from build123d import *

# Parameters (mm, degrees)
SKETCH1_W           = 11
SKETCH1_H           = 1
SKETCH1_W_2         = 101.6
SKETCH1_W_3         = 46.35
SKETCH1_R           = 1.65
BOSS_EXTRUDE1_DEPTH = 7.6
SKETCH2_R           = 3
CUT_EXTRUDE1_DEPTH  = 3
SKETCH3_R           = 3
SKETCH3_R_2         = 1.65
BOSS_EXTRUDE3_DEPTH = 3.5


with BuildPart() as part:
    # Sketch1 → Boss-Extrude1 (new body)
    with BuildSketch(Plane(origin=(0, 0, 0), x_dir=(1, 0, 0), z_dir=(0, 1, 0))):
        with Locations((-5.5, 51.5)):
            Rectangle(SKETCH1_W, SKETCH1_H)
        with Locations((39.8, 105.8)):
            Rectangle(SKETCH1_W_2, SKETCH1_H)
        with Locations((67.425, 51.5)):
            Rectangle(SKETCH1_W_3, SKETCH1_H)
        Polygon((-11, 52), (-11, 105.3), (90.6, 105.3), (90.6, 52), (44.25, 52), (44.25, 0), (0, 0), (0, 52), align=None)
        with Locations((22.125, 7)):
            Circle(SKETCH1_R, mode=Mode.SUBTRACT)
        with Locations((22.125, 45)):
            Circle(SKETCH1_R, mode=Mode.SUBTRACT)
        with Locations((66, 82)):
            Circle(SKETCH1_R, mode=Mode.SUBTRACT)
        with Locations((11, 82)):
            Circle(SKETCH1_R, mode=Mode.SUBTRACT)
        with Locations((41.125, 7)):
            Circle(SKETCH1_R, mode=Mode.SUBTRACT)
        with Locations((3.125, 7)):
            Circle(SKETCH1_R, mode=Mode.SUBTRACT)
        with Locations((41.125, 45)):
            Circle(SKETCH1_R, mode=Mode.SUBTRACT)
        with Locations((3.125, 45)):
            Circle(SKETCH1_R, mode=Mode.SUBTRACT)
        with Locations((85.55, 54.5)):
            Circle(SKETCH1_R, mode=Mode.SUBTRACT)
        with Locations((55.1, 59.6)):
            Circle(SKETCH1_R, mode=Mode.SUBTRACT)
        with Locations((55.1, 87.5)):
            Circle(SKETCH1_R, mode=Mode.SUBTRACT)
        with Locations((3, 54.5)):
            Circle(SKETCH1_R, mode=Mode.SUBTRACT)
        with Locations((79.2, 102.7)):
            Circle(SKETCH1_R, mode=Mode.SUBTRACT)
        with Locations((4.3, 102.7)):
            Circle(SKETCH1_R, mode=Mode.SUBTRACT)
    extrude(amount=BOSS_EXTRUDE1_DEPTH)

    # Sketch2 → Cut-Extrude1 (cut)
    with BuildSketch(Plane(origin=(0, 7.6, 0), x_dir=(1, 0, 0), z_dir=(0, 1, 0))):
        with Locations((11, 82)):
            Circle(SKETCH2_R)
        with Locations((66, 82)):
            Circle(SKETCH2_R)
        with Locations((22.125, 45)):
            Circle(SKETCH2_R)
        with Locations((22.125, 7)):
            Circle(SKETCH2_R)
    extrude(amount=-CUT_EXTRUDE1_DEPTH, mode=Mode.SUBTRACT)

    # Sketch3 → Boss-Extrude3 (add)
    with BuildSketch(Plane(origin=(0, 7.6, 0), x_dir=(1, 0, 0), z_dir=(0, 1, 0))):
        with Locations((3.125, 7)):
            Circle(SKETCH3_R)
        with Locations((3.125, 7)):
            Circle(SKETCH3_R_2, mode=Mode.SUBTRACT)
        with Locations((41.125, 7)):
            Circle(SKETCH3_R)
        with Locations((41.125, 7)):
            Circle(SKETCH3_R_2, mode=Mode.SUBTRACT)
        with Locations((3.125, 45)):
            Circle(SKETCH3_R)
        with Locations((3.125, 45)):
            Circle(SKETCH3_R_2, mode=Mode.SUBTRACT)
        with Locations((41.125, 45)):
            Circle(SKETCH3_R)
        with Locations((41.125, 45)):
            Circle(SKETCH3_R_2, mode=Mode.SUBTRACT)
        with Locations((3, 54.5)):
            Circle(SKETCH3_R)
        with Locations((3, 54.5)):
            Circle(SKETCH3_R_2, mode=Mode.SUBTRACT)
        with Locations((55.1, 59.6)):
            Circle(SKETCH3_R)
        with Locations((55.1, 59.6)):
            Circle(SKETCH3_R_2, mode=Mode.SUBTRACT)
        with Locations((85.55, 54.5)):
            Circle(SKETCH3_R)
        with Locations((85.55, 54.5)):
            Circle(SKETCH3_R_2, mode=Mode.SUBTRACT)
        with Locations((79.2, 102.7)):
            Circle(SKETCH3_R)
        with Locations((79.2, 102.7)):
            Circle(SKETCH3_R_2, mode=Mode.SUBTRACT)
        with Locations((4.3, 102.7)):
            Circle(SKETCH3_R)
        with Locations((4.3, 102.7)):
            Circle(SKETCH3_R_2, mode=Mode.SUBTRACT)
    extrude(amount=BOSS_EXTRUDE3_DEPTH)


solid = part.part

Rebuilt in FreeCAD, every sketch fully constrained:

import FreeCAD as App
import Part
import Sketcher

V = App.Vector
Q = App.Units.Quantity

doc = App.newDocument("Part")
body = doc.addObject("PartDesign::Body", "Body")

sketch1 = doc.addObject("Sketcher::SketchObject", "Sketch")
body.addObject(sketch1)
sketch1.AttachmentSupport = (doc.XZ_Plane, [""])
sketch1.MapMode = "FlatFace"
sketch1.addGeometry(Part.LineSegment(V(-11, -51, 0), V(0, -51, 0)), False)
sketch1.addGeometry(Part.LineSegment(V(0, -51, 0), V(0, 0, 0)), False)
sketch1.addGeometry(Part.LineSegment(V(0, 0, 0), V(44.25, 0, 0)), False)
sketch1.addGeometry(Part.LineSegment(V(44.25, 0, 0), V(44.25, -51, 0)), False)
sketch1.addGeometry(Part.LineSegment(V(44.25, -51, 0), V(90.6, -51, 0)), False)
sketch1.addGeometry(Part.LineSegment(V(90.6, -51, 0), V(90.6, -106.3, 0)), False)
sketch1.addGeometry(Part.LineSegment(V(90.6, -106.3, 0), V(-11, -106.3, 0)), False)
sketch1.addGeometry(Part.LineSegment(V(-11, -106.3, 0), V(-11, -51, 0)), False)
sketch1.addGeometry(Part.Circle(V(3.125, -7, 0), V(0, 0, 1), 1.65), False)
sketch1.addGeometry(Part.Circle(V(22.125, -7, 0), V(0, 0, 1), 1.65), False)
sketch1.addGeometry(Part.Circle(V(41.125, -7, 0), V(0, 0, 1), 1.65), False)
sketch1.addGeometry(Part.Circle(V(3.125, -45, 0), V(0, 0, 1), 1.65), False)
sketch1.addGeometry(Part.Circle(V(3, -54.5, 0), V(0, 0, 1), 1.65), False)
sketch1.addGeometry(Part.Circle(V(22.125, -45, 0), V(0, 0, 1), 1.65), False)
sketch1.addGeometry(Part.Circle(V(41.125, -45, 0), V(0, 0, 1), 1.65), False)
sketch1.addGeometry(Part.Circle(V(85.55, -54.5, 0), V(0, 0, 1), 1.65), False)
sketch1.addGeometry(Part.Circle(V(11, -82, 0), V(0, 0, 1), 1.65), False)
sketch1.addGeometry(Part.Circle(V(4.3, -102.7, 0), V(0, 0, 1), 1.65), False)
sketch1.addGeometry(Part.Circle(V(55.1, -59.6, 0), V(0, 0, 1), 1.65), False)
sketch1.addGeometry(Part.Circle(V(55.1, -87.5, 0), V(0, 0, 1), 1.65), False)
sketch1.addGeometry(Part.Circle(V(66, -82, 0), V(0, 0, 1), 1.65), False)
sketch1.addGeometry(Part.Circle(V(79.2, -102.7, 0), V(0, 0, 1), 1.65), False)
sketch1.addConstraint(Sketcher.Constraint("Coincident", 0, 2, 1, 1))
sketch1.addConstraint(Sketcher.Constraint("Coincident", 1, 2, 2, 1))
sketch1.addConstraint(Sketcher.Constraint("Coincident", 2, 2, 3, 1))
sketch1.addConstraint(Sketcher.Constraint("Coincident", 3, 2, 4, 1))
sketch1.addConstraint(Sketcher.Constraint("Coincident", 4, 2, 5, 1))
sketch1.addConstraint(Sketcher.Constraint("Coincident", 5, 2, 6, 1))
sketch1.addConstraint(Sketcher.Constraint("Coincident", 6, 2, 7, 1))
sketch1.addConstraint(Sketcher.Constraint("Coincident", 7, 2, 0, 1))
sketch1.addConstraint(Sketcher.Constraint("Horizontal", 0))
sketch1.addConstraint(Sketcher.Constraint("Vertical", 1))
sketch1.addConstraint(Sketcher.Constraint("Horizontal", 2))
sketch1.addConstraint(Sketcher.Constraint("Vertical", 3))
sketch1.addConstraint(Sketcher.Constraint("Horizontal", 4))
sketch1.addConstraint(Sketcher.Constraint("Vertical", 5))
sketch1.addConstraint(Sketcher.Constraint("Horizontal", 6))
sketch1.addConstraint(Sketcher.Constraint("Vertical", 7))
sketch1.addConstraint(Sketcher.Constraint("Coincident", 1, 2, -1, 1))
sketch1.addConstraint(Sketcher.Constraint("Equal", 8, 9))
sketch1.addConstraint(Sketcher.Constraint("Equal", 9, 10))
sketch1.addConstraint(Sketcher.Constraint("Equal", 10, 11))
sketch1.addConstraint(Sketcher.Constraint("Equal", 11, 12))
sketch1.addConstraint(Sketcher.Constraint("Equal", 12, 13))
sketch1.addConstraint(Sketcher.Constraint("Equal", 13, 14))
sketch1.addConstraint(Sketcher.Constraint("Equal", 14, 15))
sketch1.addConstraint(Sketcher.Constraint("Equal", 15, 16))
sketch1.addConstraint(Sketcher.Constraint("Equal", 16, 17))
sketch1.addConstraint(Sketcher.Constraint("Equal", 17, 18))
sketch1.addConstraint(Sketcher.Constraint("Equal", 18, 19))
sketch1.addConstraint(Sketcher.Constraint("Equal", 19, 20))
sketch1.addConstraint(Sketcher.Constraint("Equal", 20, 21))
sketch1.addConstraint(Sketcher.Constraint("Horizontal", 8, 3, 9, 3))
sketch1.addConstraint(Sketcher.Constraint("Horizontal", 9, 3, 10, 3))
sketch1.addConstraint(Sketcher.Constraint("Horizontal", 11, 3, 13, 3))
sketch1.addConstraint(Sketcher.Constraint("Horizontal", 13, 3, 14, 3))
sketch1.addConstraint(Sketcher.Constraint("Horizontal", 12, 3, 15, 3))
sketch1.addConstraint(Sketcher.Constraint("Horizontal", 16, 3, 20, 3))
sketch1.addConstraint(Sketcher.Constraint("Horizontal", 17, 3, 21, 3))
sketch1.addConstraint(Sketcher.Constraint("Horizontal", 0, 2, 3, 2))
sketch1.addConstraint(Sketcher.Constraint("Vertical", 8, 3, 11, 3))
sketch1.addConstraint(Sketcher.Constraint("Vertical", 9, 3, 13, 3))
sketch1.addConstraint(Sketcher.Constraint("Vertical", 10, 3, 14, 3))
sketch1.addConstraint(Sketcher.Constraint("Vertical", 18, 3, 19, 3))
sketch1.addConstraint(Sketcher.Constraint("Diameter", 8, Q("3.3 mm")))
sketch1.addConstraint(Sketcher.Constraint("DistanceX", 0, 1, 0, 2, Q("11 mm")))
sketch1.addConstraint(Sketcher.Constraint("DistanceY", 1, 1, 1, 2, Q("51 mm")))
sketch1.addConstraint(Sketcher.Constraint("DistanceX", 6, 2, 6, 1, Q("101.6 mm")))
sketch1.addConstraint(Sketcher.Constraint("DistanceY", 5, 2, 5, 1, Q("55.3 mm")))
sketch1.addConstraint(Sketcher.Constraint("DistanceY", 8, 3, -1, 1, Q("7 mm")))
sketch1.addConstraint(Sketcher.Constraint("DistanceY", 11, 3, -1, 1, Q("45 mm")))
sketch1.addConstraint(Sketcher.Constraint("DistanceX", -1, 1, 12, 3, Q("3 mm")))
sketch1.addConstraint(Sketcher.Constraint("DistanceX", -1, 1, 16, 3, Q("11 mm")))
sketch1.addConstraint(Sketcher.Constraint("DistanceY", 16, 3, -1, 1, Q("82 mm")))
sketch1.addConstraint(Sketcher.Constraint("DistanceX", -1, 1, 20, 3, Q("66 mm")))
sketch1.addConstraint(Sketcher.Constraint("DistanceX", 8, 3, 9, 3, Q("19 mm")))
sketch1.addConstraint(Sketcher.Constraint("DistanceX", 9, 3, 10, 3, Q("19 mm")))
sketch1.addConstraint(Sketcher.Constraint("DistanceY", 19, 3, 15, 3, Q("33 mm")))
sketch1.addConstraint(Sketcher.Constraint("DistanceX", 2, 1, 2, 2, Q("44.25 mm")))
sketch1.addConstraint(Sketcher.Constraint("DistanceY", 12, 3, -1, 1, Q("54.5 mm")))
sketch1.addConstraint(Sketcher.Constraint("DistanceX", -1, 1, 17, 3, Q("4.3 mm")))
sketch1.addConstraint(Sketcher.Constraint("DistanceY", 17, 3, -1, 1, Q("102.7 mm")))
sketch1.addConstraint(Sketcher.Constraint("DistanceX", -1, 1, 18, 3, Q("55.1 mm")))
sketch1.addConstraint(Sketcher.Constraint("DistanceY", 18, 3, -1, 1, Q("59.6 mm")))
sketch1.addConstraint(Sketcher.Constraint("DistanceX", -1, 1, 21, 3, Q("79.2 mm")))
sketch1.addConstraint(Sketcher.Constraint("DistanceX", -1, 1, 15, 3, Q("85.55 mm")))
sketch1.addConstraint(Sketcher.Constraint("DistanceX", -1, 1, 8, 3, Q("3.125 mm")))
pad1 = doc.addObject("PartDesign::Pad", "Pad")
body.addObject(pad1)
pad1.Profile = sketch1
pad1.Length = 7.6
pad1.Reversed = True

sketch2 = doc.addObject("Sketcher::SketchObject", "Sketch001")
body.addObject(sketch2)
sketch2.AttachmentSupport = (doc.XZ_Plane, [""])
sketch2.MapMode = "FlatFace"
sketch2.AttachmentOffset = App.Placement(V(0, 0, -7.6), App.Rotation())
sketch2.addGeometry(Part.Circle(V(11, -82, 0), V(0, 0, 1), 3), False)
sketch2.addGeometry(Part.Circle(V(66, -82, 0), V(0, 0, 1), 3), False)
sketch2.addGeometry(Part.Circle(V(22.125, -45, 0), V(0, 0, 1), 3), False)
sketch2.addGeometry(Part.Circle(V(22.125, -7, 0), V(0, 0, 1), 3), False)
sketch2.addConstraint(Sketcher.Constraint("Equal", 0, 1))
sketch2.addConstraint(Sketcher.Constraint("Equal", 1, 2))
sketch2.addConstraint(Sketcher.Constraint("Equal", 2, 3))
sketch2.addConstraint(Sketcher.Constraint("Horizontal", 0, 3, 1, 3))
sketch2.addConstraint(Sketcher.Constraint("Vertical", 2, 3, 3, 3))
sketch2.addConstraint(Sketcher.Constraint("Diameter", 0, Q("6 mm")))
sketch2.addConstraint(Sketcher.Constraint("DistanceX", -1, 1, 0, 3, Q("11 mm")))
sketch2.addConstraint(Sketcher.Constraint("DistanceY", 0, 3, -1, 1, Q("82 mm")))
sketch2.addConstraint(Sketcher.Constraint("DistanceX", -1, 1, 1, 3, Q("66 mm")))
sketch2.addConstraint(Sketcher.Constraint("DistanceY", 2, 3, -1, 1, Q("45 mm")))
sketch2.addConstraint(Sketcher.Constraint("DistanceY", 3, 3, -1, 1, Q("7 mm")))
sketch2.addConstraint(Sketcher.Constraint("DistanceX", -1, 1, 2, 3, Q("22.125 mm")))
pocket1 = doc.addObject("PartDesign::Pocket", "Pocket")
body.addObject(pocket1)
pocket1.Profile = sketch2
pocket1.Length = 3
pocket1.Reversed = True

sketch3 = doc.addObject("Sketcher::SketchObject", "Sketch002")
body.addObject(sketch3)
sketch3.AttachmentSupport = (doc.XZ_Plane, [""])
sketch3.MapMode = "FlatFace"
sketch3.AttachmentOffset = App.Placement(V(0, 0, -7.6), App.Rotation())
sketch3.addGeometry(Part.Circle(V(3.125, -7, 0), V(0, 0, 1), 3), False)
sketch3.addGeometry(Part.Circle(V(3.125, -7, 0), V(0, 0, 1), 1.65), False)
sketch3.addGeometry(Part.Circle(V(41.125, -7, 0), V(0, 0, 1), 3), False)
sketch3.addGeometry(Part.Circle(V(41.125, -7, 0), V(0, 0, 1), 1.65), False)
sketch3.addGeometry(Part.Circle(V(3.125, -45, 0), V(0, 0, 1), 3), False)
sketch3.addGeometry(Part.Circle(V(3.125, -45, 0), V(0, 0, 1), 1.65), False)
sketch3.addGeometry(Part.Circle(V(41.125, -45, 0), V(0, 0, 1), 3), False)
sketch3.addGeometry(Part.Circle(V(41.125, -45, 0), V(0, 0, 1), 1.65), False)
sketch3.addGeometry(Part.Circle(V(3, -54.5, 0), V(0, 0, 1), 3), False)
sketch3.addGeometry(Part.Circle(V(3, -54.5, 0), V(0, 0, 1), 1.65), False)
sketch3.addGeometry(Part.Circle(V(55.1, -59.6, 0), V(0, 0, 1), 3), False)
sketch3.addGeometry(Part.Circle(V(55.1, -59.6, 0), V(0, 0, 1), 1.65), False)
sketch3.addGeometry(Part.Circle(V(85.55, -54.5, 0), V(0, 0, 1), 3), False)
sketch3.addGeometry(Part.Circle(V(85.55, -54.5, 0), V(0, 0, 1), 1.65), False)
sketch3.addGeometry(Part.Circle(V(79.2, -102.7, 0), V(0, 0, 1), 3), False)
sketch3.addGeometry(Part.Circle(V(79.2, -102.7, 0), V(0, 0, 1), 1.65), False)
sketch3.addGeometry(Part.Circle(V(4.3, -102.7, 0), V(0, 0, 1), 3), False)
sketch3.addGeometry(Part.Circle(V(4.3, -102.7, 0), V(0, 0, 1), 1.65), False)
sketch3.addConstraint(Sketcher.Constraint("Coincident", 1, 3, 0, 3))
sketch3.addConstraint(Sketcher.Constraint("Coincident", 3, 3, 2, 3))
sketch3.addConstraint(Sketcher.Constraint("Coincident", 5, 3, 4, 3))
sketch3.addConstraint(Sketcher.Constraint("Coincident", 7, 3, 6, 3))
sketch3.addConstraint(Sketcher.Constraint("Coincident", 9, 3, 8, 3))
sketch3.addConstraint(Sketcher.Constraint("Coincident", 11, 3, 10, 3))
sketch3.addConstraint(Sketcher.Constraint("Coincident", 13, 3, 12, 3))
sketch3.addConstraint(Sketcher.Constraint("Coincident", 15, 3, 14, 3))
sketch3.addConstraint(Sketcher.Constraint("Coincident", 17, 3, 16, 3))
sketch3.addConstraint(Sketcher.Constraint("Equal", 0, 2))
sketch3.addConstraint(Sketcher.Constraint("Equal", 1, 3))
sketch3.addConstraint(Sketcher.Constraint("Equal", 2, 4))
sketch3.addConstraint(Sketcher.Constraint("Equal", 3, 5))
sketch3.addConstraint(Sketcher.Constraint("Equal", 4, 6))
sketch3.addConstraint(Sketcher.Constraint("Equal", 5, 7))
sketch3.addConstraint(Sketcher.Constraint("Equal", 6, 8))
sketch3.addConstraint(Sketcher.Constraint("Equal", 7, 9))
sketch3.addConstraint(Sketcher.Constraint("Equal", 8, 10))
sketch3.addConstraint(Sketcher.Constraint("Equal", 9, 11))
sketch3.addConstraint(Sketcher.Constraint("Equal", 10, 12))
sketch3.addConstraint(Sketcher.Constraint("Equal", 11, 13))
sketch3.addConstraint(Sketcher.Constraint("Equal", 12, 14))
sketch3.addConstraint(Sketcher.Constraint("Equal", 13, 15))
sketch3.addConstraint(Sketcher.Constraint("Equal", 14, 16))
sketch3.addConstraint(Sketcher.Constraint("Equal", 15, 17))
sketch3.addConstraint(Sketcher.Constraint("Horizontal", 1, 3, 2, 3))
sketch3.addConstraint(Sketcher.Constraint("Horizontal", 5, 3, 6, 3))
sketch3.addConstraint(Sketcher.Constraint("Horizontal", 9, 3, 12, 3))
sketch3.addConstraint(Sketcher.Constraint("Horizontal", 15, 3, 16, 3))
sketch3.addConstraint(Sketcher.Constraint("Vertical", 1, 3, 4, 3))
sketch3.addConstraint(Sketcher.Constraint("Vertical", 3, 3, 6, 3))
sketch3.addConstraint(Sketcher.Constraint("Diameter", 0, Q("6 mm")))
sketch3.addConstraint(Sketcher.Constraint("Diameter", 1, Q("3.3 mm")))
sketch3.addConstraint(Sketcher.Constraint("DistanceY", 0, 3, -1, 1, Q("7 mm")))
sketch3.addConstraint(Sketcher.Constraint("DistanceY", 4, 3, -1, 1, Q("45 mm")))
sketch3.addConstraint(Sketcher.Constraint("DistanceX", -1, 1, 8, 3, Q("3 mm")))
sketch3.addConstraint(Sketcher.Constraint("DistanceX", 0, 3, 2, 3, Q("38 mm")))
sketch3.addConstraint(Sketcher.Constraint("DistanceY", 8, 3, -1, 1, Q("54.5 mm")))
sketch3.addConstraint(Sketcher.Constraint("DistanceX", -1, 1, 10, 3, Q("55.1 mm")))
sketch3.addConstraint(Sketcher.Constraint("DistanceY", 10, 3, -1, 1, Q("59.6 mm")))
sketch3.addConstraint(Sketcher.Constraint("DistanceX", -1, 1, 14, 3, Q("79.2 mm")))
sketch3.addConstraint(Sketcher.Constraint("DistanceY", 14, 3, -1, 1, Q("102.7 mm")))
sketch3.addConstraint(Sketcher.Constraint("DistanceX", -1, 1, 16, 3, Q("4.3 mm")))
sketch3.addConstraint(Sketcher.Constraint("DistanceX", -1, 1, 12, 3, Q("85.55 mm")))
sketch3.addConstraint(Sketcher.Constraint("DistanceX", -1, 1, 0, 3, Q("3.125 mm")))
pad2 = doc.addObject("PartDesign::Pad", "Pad001")
body.addObject(pad2)
pad2.Profile = sketch3
pad2.Length = 3.5
pad2.Reversed = True

doc.recompute()
